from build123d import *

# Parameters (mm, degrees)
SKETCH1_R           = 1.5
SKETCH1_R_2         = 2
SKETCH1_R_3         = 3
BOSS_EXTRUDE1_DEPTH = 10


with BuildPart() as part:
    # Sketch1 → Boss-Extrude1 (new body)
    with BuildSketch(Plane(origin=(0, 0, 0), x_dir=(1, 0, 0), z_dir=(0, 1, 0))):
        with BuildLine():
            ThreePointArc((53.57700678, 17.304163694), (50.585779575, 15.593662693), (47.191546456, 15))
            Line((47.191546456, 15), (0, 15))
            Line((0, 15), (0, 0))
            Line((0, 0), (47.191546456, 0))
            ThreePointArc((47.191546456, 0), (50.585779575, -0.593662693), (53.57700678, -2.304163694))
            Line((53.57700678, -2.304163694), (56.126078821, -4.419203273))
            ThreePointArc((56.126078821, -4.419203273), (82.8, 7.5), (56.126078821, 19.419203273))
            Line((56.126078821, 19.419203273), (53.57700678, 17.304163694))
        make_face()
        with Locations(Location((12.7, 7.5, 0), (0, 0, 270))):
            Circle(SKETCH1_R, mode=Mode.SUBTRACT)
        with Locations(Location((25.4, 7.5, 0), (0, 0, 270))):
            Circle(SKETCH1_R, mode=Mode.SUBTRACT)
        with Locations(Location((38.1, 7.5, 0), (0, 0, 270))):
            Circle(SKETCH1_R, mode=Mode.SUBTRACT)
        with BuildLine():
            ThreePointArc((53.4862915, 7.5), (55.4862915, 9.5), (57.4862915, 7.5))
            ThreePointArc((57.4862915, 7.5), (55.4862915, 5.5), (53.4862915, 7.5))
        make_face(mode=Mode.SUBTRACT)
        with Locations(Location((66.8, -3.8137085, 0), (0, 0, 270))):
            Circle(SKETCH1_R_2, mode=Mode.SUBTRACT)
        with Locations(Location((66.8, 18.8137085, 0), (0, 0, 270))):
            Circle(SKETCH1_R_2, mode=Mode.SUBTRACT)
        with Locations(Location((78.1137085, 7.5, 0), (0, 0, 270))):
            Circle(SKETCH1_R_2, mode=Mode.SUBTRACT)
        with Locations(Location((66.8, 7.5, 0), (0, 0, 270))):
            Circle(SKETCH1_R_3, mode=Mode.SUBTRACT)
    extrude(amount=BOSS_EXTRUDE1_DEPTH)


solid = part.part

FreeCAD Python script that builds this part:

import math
import FreeCAD as App
import Part
import Sketcher

doc = App.newDocument("Part")
body = doc.addObject("PartDesign::Body", "Body")

sketch1 = doc.addObject("Sketcher::SketchObject", "Sketch")
body.addObject(sketch1)
sketch1.AttachmentSupport = (doc.XZ_Plane, [""])
sketch1.MapMode = "FlatFace"
sketch1.addGeometry([
    Part.ArcOfCircle(Part.Circle(App.Vector(47.2, -25, 0), App.Vector(0, 0, 1), 10), math.radians(50), math.radians(90)),
    Part.LineSegment(App.Vector(47.2, -15, 0), App.Vector(0, -15, 0)),
    Part.LineSegment(App.Vector(0, -15, 0), App.Vector(0, 0, 0)),
    Part.LineSegment(App.Vector(0, 0, 0), App.Vector(47.2, 0, 0)),
    Part.ArcOfCircle(Part.Circle(App.Vector(47.2, 10, 0), App.Vector(0, 0, 1), 10), math.radians(-90), math.radians(-50)),
    Part.LineSegment(App.Vector(53.6, 2.3, 0), App.Vector(56.1, 4.4, 0)),
    Part.ArcOfCircle(Part.Circle(App.Vector(66.8, -7.5, 0), App.Vector(0, 0, 1), 16), math.radians(-132), math.radians(132)),
    Part.LineSegment(App.Vector(56.1, -19.4, 0), App.Vector(53.6, -17.3, 0)),
    Part.Circle(App.Vector(66.8, 3.8, 0), App.Vector(0, 0, 1), 2),
    Part.Circle(App.Vector(12.7, -7.5, 0), App.Vector(0, 0, 1), 1.5),
    Part.Circle(App.Vector(25.4, -7.5, 0), App.Vector(0, 0, 1), 1.5),
    Part.Circle(App.Vector(38.1, -7.5, 0), App.Vector(0, 0, 1), 1.5),
    Part.Circle(App.Vector(55.5, -7.5, 0), App.Vector(0, 0, 1), 2),
    Part.Circle(App.Vector(66.8, -7.5, 0), App.Vector(0, 0, 1), 3),
    Part.Circle(App.Vector(78.1, -7.5, 0), App.Vector(0, 0, 1), 2),
    Part.Circle(App.Vector(66.8, -18.8, 0), App.Vector(0, 0, 1), 2),
], False)
sketch1.addConstraint([
    Sketcher.Constraint("Tangent", 0, 2, 1, 1),
    Sketcher.Constraint("Coincident", 1, 2, 2, 1),
    Sketcher.Constraint("Coincident", 2, 2, 3, 1),
    Sketcher.Constraint("Tangent", 3, 2, 4, 1),
    Sketcher.Constraint("Tangent", 4, 2, 5, 1),
    Sketcher.Constraint("Coincident", 5, 2, 6, 2),
    Sketcher.Constraint("Coincident", 6, 1, 7, 1),
    Sketcher.Constraint("Tangent", 7, 2, 0, 1),
    Sketcher.Constraint("Horizontal", 1),
    Sketcher.Constraint("Vertical", 2),
    Sketcher.Constraint("Horizontal", 3),
    Sketcher.Constraint("Coincident", 2, 2, -1, 1),
    Sketcher.Constraint("Coincident", 13, 3, 6, 3),
    Sketcher.Constraint("Equal", 0, 4),
    Sketcher.Constraint("Equal", 9, 10),
    Sketcher.Constraint("Equal", 10, 11),
    Sketcher.Constraint("Equal", 8, 12),
    Sketcher.Constraint("Equal", 12, 14),
    Sketcher.Constraint("Equal", 14, 15),
    Sketcher.Constraint("Horizontal", 6, 3, 9, 3),
    Sketcher.Constraint("Horizontal", 9, 3, 10, 3),
    Sketcher.Constraint("Horizontal", 10, 3, 11, 3),
    Sketcher.Constraint("Horizontal", 11, 3, 12, 3),
    Sketcher.Constraint("Horizontal", 13, 3, 14, 3),
    Sketcher.Constraint("Vertical", 0, 3, 4, 3),
    Sketcher.Constraint("Vertical", 6, 3, 8, 3),
    Sketcher.Constraint("Vertical", 13, 3, 15, 3),
    Sketcher.Constraint("Vertical", 5, 2, 6, 1),
    Sketcher.Constraint("Vertical", 4, 2, 7, 2),
    Sketcher.Constraint("Diameter", 8, 4.0),
    Sketcher.Constraint("Diameter", 9, 3.0),
    Sketcher.Constraint("Diameter", 13, 6.0),
    Sketcher.Constraint("Radius", 0, 10.0),
    Sketcher.Constraint("Radius", 6, 16.0),
    Sketcher.Constraint("DistanceY", 2, 1, 2, 2, 15.0),
    Sketcher.Constraint("DistanceX", -1, 1, 6, 3, 66.8),
    Sketcher.Constraint("DistanceX", -1, 1, 9, 3, 12.7),
    Sketcher.Constraint("DistanceX", -1, 1, 10, 3, 25.4),
    Sketcher.Constraint("DistanceX", -1, 1, 11, 3, 38.1),
    Sketcher.Constraint("DistanceX", 1, 2, 1, 1, 47.191546),
    Sketcher.Constraint("DistanceY", -1, 1, 8, 3, 3.813709),
    Sketcher.Constraint("DistanceX", -1, 1, 12, 3, 55.486292),
    Sketcher.Constraint("DistanceX", -1, 1, 14, 3, 78.113709),
    Sketcher.Constraint("DistanceY", 15, 3, -1, 1, 18.813709),
    Sketcher.Constraint("DistanceX", -1, 1, 5, 2, 56.126079),
])
pad1 = doc.addObject("PartDesign::Pad", "Pad")
body.addObject(pad1)
pad1.Profile = sketch1
pad1.Length = 10
pad1.Reversed = True

doc.recompute()
